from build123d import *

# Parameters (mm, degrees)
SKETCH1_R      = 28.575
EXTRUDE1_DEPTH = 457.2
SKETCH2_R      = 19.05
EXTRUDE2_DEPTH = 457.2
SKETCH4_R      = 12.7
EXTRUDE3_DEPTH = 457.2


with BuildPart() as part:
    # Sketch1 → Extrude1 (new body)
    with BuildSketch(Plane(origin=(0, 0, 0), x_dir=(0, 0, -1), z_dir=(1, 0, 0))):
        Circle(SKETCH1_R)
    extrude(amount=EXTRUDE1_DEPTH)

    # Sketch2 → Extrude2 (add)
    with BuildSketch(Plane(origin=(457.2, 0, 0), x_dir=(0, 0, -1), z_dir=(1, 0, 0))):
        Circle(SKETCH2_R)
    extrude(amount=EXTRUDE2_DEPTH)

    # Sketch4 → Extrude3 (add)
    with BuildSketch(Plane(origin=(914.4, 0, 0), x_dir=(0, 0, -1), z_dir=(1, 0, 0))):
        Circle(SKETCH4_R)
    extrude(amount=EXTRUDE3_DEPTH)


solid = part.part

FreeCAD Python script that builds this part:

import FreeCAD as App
import Part
import Sketcher
Q = App.Units.Quantity

doc = App.newDocument("Part")
body = doc.addObject("PartDesign::Body", "Body")

# Sketch on YZ plane
sketch1 = doc.addObject("Sketcher::SketchObject", "Sketch")
body.addObject(sketch1)
sketch1.AttachmentSupport = (doc.YZ_Plane, [""])
sketch1.MapMode = "FlatFace"
sketch1.addGeometry(Part.Circle(App.Vector(0, 0, 0), App.Vector(0, 0, 1), 28.575), False)
sketch1.addConstraint([
    Sketcher.Constraint("Coincident", 0, 3, -1, 1),
    Sketcher.Constraint("Diameter", 0, Q("2.25 in")),
])
pad1 = doc.addObject("PartDesign::Pad", "Pad")
body.addObject(pad1)
pad1.Profile = sketch1
pad1.Length = Q("18 in")

# Sketch on YZ plane
sketch2 = doc.addObject("Sketcher::SketchObject", "Sketch001")
body.addObject(sketch2)
sketch2.AttachmentSupport = (doc.YZ_Plane, [""])
sketch2.MapMode = "FlatFace"
sketch2.AttachmentOffset = App.Placement(App.Vector(0, 0, 18 * 25.4), App.Rotation())
sketch2.addGeometry(Part.Circle(App.Vector(0, 0, 0), App.Vector(0, 0, 1), 19.05), False)
sketch2.addConstraint([
    Sketcher.Constraint("Coincident", 0, 3, -1, 1),
    Sketcher.Constraint("Diameter", 0, Q("1.5 in")),
])
pad2 = doc.addObject("PartDesign::Pad", "Pad001")
body.addObject(pad2)
pad2.Profile = sketch2
pad2.Length = Q("18 in")

# Sketch on YZ plane
sketch3 = doc.addObject("Sketcher::SketchObject", "Sketch002")
body.addObject(sketch3)
sketch3.AttachmentSupport = (doc.YZ_Plane, [""])
sketch3.MapMode = "FlatFace"
sketch3.AttachmentOffset = App.Placement(App.Vector(0, 0, 36 * 25.4), App.Rotation())
sketch3.addGeometry(Part.Circle(App.Vector(0, 0, 0), App.Vector(0, 0, 1), 12.7), False)
sketch3.addConstraint([
    Sketcher.Constraint("Coincident", 0, 3, -1, 1),
    Sketcher.Constraint("Diameter", 0, Q("1 in")),
])
pad3 = doc.addObject("PartDesign::Pad", "Pad002")
body.addObject(pad3)
pad3.Profile = sketch3
pad3.Length = Q("18 in")

doc.recompute()
